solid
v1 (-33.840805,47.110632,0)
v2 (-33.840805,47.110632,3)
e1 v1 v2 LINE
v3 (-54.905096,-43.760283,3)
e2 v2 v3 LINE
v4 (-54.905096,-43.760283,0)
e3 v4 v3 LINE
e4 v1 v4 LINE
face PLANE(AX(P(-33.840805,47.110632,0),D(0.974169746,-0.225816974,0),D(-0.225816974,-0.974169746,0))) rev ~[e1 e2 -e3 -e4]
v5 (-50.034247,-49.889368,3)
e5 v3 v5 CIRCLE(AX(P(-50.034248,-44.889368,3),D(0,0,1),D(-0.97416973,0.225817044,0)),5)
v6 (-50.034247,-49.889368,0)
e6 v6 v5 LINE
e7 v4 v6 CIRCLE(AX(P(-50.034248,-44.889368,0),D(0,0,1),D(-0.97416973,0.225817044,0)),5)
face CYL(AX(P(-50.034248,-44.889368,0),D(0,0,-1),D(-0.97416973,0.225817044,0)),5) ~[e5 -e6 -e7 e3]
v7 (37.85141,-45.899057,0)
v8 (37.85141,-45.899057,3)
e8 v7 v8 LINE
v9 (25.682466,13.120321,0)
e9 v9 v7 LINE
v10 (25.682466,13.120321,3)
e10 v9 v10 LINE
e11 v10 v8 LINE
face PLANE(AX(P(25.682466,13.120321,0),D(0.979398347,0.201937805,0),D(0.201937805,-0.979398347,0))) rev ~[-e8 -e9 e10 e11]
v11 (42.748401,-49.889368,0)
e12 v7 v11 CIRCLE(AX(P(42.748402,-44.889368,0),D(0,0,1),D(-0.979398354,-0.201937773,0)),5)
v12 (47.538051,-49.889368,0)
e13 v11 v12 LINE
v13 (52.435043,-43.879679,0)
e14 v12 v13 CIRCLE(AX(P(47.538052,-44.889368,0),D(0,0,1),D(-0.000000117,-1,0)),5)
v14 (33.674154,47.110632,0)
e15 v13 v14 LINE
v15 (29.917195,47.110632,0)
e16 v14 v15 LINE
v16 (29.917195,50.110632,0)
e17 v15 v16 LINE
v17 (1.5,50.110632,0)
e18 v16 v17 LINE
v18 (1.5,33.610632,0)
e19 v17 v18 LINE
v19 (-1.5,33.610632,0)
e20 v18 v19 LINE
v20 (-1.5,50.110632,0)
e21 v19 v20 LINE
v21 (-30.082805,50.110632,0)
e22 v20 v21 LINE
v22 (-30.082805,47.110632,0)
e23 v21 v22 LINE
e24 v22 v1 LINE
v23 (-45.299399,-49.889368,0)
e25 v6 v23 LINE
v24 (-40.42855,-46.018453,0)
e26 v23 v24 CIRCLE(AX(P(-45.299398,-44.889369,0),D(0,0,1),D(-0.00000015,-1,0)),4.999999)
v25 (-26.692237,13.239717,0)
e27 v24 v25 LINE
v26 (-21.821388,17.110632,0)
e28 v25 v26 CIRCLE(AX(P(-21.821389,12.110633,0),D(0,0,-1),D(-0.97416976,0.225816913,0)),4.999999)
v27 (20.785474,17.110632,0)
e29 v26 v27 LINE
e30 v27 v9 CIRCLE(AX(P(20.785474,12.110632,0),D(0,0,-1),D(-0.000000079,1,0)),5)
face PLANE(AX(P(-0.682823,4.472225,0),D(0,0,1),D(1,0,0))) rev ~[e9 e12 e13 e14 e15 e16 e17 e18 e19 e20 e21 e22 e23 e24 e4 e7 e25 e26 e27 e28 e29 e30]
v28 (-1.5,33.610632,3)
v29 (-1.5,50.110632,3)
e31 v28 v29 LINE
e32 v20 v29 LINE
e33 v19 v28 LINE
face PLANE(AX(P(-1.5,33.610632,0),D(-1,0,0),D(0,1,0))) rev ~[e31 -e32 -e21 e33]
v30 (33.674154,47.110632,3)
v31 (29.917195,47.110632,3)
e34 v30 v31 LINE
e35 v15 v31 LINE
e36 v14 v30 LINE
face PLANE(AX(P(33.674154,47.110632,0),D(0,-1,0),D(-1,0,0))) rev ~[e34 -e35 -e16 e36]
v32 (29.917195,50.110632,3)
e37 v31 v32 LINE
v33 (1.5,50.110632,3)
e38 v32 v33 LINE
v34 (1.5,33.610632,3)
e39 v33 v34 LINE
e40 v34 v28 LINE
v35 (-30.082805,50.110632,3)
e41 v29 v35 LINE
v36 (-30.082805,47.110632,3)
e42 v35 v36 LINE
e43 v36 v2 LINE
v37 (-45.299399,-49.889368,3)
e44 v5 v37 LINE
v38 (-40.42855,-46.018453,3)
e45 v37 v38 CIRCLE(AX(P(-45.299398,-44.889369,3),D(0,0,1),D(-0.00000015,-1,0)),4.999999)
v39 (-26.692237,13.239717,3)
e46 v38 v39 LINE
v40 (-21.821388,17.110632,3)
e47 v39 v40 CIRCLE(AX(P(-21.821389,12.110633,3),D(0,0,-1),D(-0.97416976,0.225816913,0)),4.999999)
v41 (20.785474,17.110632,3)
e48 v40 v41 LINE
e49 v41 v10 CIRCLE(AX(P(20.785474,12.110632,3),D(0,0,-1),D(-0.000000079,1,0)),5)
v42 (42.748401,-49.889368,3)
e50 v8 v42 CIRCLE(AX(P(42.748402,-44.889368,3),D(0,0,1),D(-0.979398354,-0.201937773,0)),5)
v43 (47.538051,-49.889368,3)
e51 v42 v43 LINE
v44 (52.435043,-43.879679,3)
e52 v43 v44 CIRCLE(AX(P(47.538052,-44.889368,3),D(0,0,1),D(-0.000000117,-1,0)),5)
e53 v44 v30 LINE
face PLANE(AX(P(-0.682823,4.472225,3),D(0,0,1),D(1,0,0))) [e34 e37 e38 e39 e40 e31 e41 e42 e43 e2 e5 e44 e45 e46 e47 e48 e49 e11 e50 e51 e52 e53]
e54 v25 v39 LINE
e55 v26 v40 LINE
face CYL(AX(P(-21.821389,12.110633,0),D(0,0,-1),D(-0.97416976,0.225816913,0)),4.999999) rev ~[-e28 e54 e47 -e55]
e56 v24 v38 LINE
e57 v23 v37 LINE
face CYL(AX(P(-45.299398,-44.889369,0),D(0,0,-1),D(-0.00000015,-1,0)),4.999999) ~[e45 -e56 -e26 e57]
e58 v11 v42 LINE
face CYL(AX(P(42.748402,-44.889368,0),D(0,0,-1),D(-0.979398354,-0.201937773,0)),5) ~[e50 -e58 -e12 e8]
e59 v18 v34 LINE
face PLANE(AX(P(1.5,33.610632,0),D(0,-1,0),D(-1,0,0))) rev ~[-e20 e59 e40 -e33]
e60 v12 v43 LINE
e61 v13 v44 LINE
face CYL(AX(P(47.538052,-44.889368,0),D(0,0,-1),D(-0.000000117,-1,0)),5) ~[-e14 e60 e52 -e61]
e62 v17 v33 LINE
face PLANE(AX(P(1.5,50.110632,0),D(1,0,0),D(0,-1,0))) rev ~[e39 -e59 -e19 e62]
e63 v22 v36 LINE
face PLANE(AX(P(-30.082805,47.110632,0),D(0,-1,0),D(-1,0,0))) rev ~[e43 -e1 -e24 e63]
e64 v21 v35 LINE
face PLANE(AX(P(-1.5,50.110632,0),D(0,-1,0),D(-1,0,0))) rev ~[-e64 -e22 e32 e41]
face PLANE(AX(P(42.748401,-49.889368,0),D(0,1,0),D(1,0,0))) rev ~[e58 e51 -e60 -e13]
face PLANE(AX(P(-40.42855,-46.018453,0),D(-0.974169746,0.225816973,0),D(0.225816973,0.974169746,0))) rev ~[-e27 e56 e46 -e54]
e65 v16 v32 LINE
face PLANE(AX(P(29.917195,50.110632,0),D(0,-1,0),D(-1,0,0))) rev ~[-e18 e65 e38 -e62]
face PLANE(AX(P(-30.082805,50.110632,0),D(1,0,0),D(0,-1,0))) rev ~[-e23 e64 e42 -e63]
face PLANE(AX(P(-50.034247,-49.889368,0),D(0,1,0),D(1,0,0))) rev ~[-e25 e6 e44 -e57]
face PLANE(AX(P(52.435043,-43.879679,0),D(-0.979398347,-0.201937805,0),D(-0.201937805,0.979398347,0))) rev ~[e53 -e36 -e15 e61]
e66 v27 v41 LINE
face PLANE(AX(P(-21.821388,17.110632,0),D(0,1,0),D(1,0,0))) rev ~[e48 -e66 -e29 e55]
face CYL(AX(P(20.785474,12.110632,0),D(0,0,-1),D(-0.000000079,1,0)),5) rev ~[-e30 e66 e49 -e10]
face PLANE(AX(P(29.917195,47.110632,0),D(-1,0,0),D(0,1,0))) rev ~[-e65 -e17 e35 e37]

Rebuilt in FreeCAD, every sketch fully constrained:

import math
import FreeCAD as App
import Part
import Sketcher
from FreeCAD import Vector
Q = App.Units.Quantity

doc = App.newDocument("Part")
body = doc.addObject("PartDesign::Body", "Body")

# Sketch on XY plane
sketch1 = body.newObject("Sketcher::SketchObject", "Sketch")
sketch1.AttachmentSupport = (doc.getObject("XY_Plane"), [""])
sketch1.MapMode = "FlatFace"
sketch1.addGeometry([
    Part.LineSegment(Vector(-1.5, 50.1, 0), Vector(-30.1, 50.1, 0)),  # 0
    Part.LineSegment(Vector(-30.1, 50.1, 0), Vector(-30.1, 47.1, 0)),  # 1
    Part.LineSegment(Vector(-30.1, 47.1, 0), Vector(-33.8, 47.1, 0)),  # 2
    Part.LineSegment(Vector(-33.8, 47.1, 0), Vector(-54.9, -43.8, 0)),  # 3
    Part.ArcOfCircle(Part.Circle(Vector(-50, -44.9, 0), Vector(0, 0, 1), 5), math.radians(167), math.radians(270)),  # 4
    Part.LineSegment(Vector(-50, -49.9, 0), Vector(-45.3, -49.9, 0)),  # 5
    Part.ArcOfCircle(Part.Circle(Vector(-45.3, -44.9, 0), Vector(0, 0, 1), 5), math.radians(-90), math.radians(-13)),  # 6
    Part.LineSegment(Vector(-40.4, -46, 0), Vector(-26.7, 13.2, 0)),  # 7
    Part.ArcOfCircle(Part.Circle(Vector(-21.8, 12.1, 0), Vector(0, 0, 1), 5), math.radians(90), math.radians(167)),  # 8
    Part.LineSegment(Vector(-21.8, 17.1, 0), Vector(20.8, 17.1, 0)),  # 9
    Part.ArcOfCircle(Part.Circle(Vector(20.8, 12.1, 0), Vector(0, 0, 1), 5), math.radians(12), math.radians(90)),  # 10
    Part.LineSegment(Vector(25.7, 13.1, 0), Vector(37.9, -45.9, 0)),  # 11
    Part.ArcOfCircle(Part.Circle(Vector(42.7, -44.9, 0), Vector(0, 0, 1), 5), math.radians(-168), math.radians(-90)),  # 12
    Part.LineSegment(Vector(42.7, -49.9, 0), Vector(47.5, -49.9, 0)),  # 13
    Part.ArcOfCircle(Part.Circle(Vector(47.5, -44.9, 0), Vector(0, 0, 1), 5), math.radians(-90), math.radians(12)),  # 14
    Part.LineSegment(Vector(52.4, -43.9, 0), Vector(33.7, 47.1, 0)),  # 15
    Part.LineSegment(Vector(33.7, 47.1, 0), Vector(29.9, 47.1, 0)),  # 16
    Part.LineSegment(Vector(29.9, 47.1, 0), Vector(29.9, 50.1, 0)),  # 17
    Part.LineSegment(Vector(29.9, 50.1, 0), Vector(1.5, 50.1, 0)),  # 18
    Part.LineSegment(Vector(1.5, 50.1, 0), Vector(1.5, 33.6, 0)),  # 19
    Part.LineSegment(Vector(1.5, 33.6, 0), Vector(-1.5, 33.6, 0)),  # 20
    Part.LineSegment(Vector(-1.5, 33.6, 0), Vector(-1.5, 50.1, 0)),  # 21
], False)
sketch1.addConstraint([
    Sketcher.Constraint("Coincident", 0, 2, 1, 1),
    Sketcher.Constraint("Coincident", 1, 2, 2, 1),
    Sketcher.Constraint("Coincident", 2, 2, 3, 1),
    Sketcher.Constraint("Tangent", 3, 2, 4, 1),
    Sketcher.Constraint("Tangent", 4, 2, 5, 1),
    Sketcher.Constraint("Tangent", 5, 2, 6, 1),
    Sketcher.Constraint("Tangent", 6, 2, 7, 1),
    Sketcher.Constraint("Tangent", 7, 2, 8, 2),
    Sketcher.Constraint("Tangent", 8, 1, 9, 1),
    Sketcher.Constraint("Tangent", 9, 2, 10, 2),
    Sketcher.Constraint("Tangent", 10, 1, 11, 1),
    Sketcher.Constraint("Tangent", 11, 2, 12, 1),
    Sketcher.Constraint("Tangent", 12, 2, 13, 1),
    Sketcher.Constraint("Tangent", 13, 2, 14, 1),
    Sketcher.Constraint("Tangent", 14, 2, 15, 1),
    Sketcher.Constraint("Coincident", 15, 2, 16, 1),
    Sketcher.Constraint("Coincident", 16, 2, 17, 1),
    Sketcher.Constraint("Coincident", 17, 2, 18, 1),
    Sketcher.Constraint("Coincident", 18, 2, 19, 1),
    Sketcher.Constraint("Coincident", 19, 2, 20, 1),
    Sketcher.Constraint("Coincident", 20, 2, 21, 1),
    Sketcher.Constraint("Coincident", 21, 2, 0, 1),
    Sketcher.Constraint("Horizontal", 0),
    Sketcher.Constraint("Vertical", 1),
    Sketcher.Constraint("Horizontal", 2),
    Sketcher.Constraint("Horizontal", 5),
    Sketcher.Constraint("Horizontal", 9),
    Sketcher.Constraint("Horizontal", 13),
    Sketcher.Constraint("Horizontal", 16),
    Sketcher.Constraint("Vertical", 17),
    Sketcher.Constraint("Horizontal", 18),
    Sketcher.Constraint("Vertical", 19),
    Sketcher.Constraint("Horizontal", 20),
    Sketcher.Constraint("Vertical", 21),
    Sketcher.Constraint("Equal", 4, 6),
    Sketcher.Constraint("Equal", 6, 8),
    Sketcher.Constraint("Equal", 8, 10),
    Sketcher.Constraint("Equal", 10, 12),
    Sketcher.Constraint("Equal", 12, 14),
    Sketcher.Constraint("Symmetric", 18, 2, 21, 2, -2),
    Sketcher.Constraint("Parallel", 3, 7),
    Sketcher.Constraint("Parallel", 11, 15),
    Sketcher.Constraint("Horizontal", 6, 3, 12, 3),
    Sketcher.Constraint("Horizontal", 2, 2, 15, 2),
    Sketcher.Constraint("Equal", 20, 1),
    Sketcher.Constraint("Radius", 4, Q("5 mm")),
    Sketcher.Constraint("DistanceX", 20, 2, 20, 1, Q("3 mm")),
    Sketcher.Constraint("DistanceY", 19, 2, 19, 1, Q("16.5 mm")),
    Sketcher.Constraint("DistanceY", 6, 3, 8, 3, Q("57.000001 mm")),
    Sketcher.Constraint("DistanceY", 8, 3, 0, 2, Q("37.999999 mm")),
    Sketcher.Constraint("DistanceX", 2, 2, 2, 1, Q("3.758 mm")),
    Sketcher.Constraint("DistanceX", 13, 1, 13, 2, Q("4.78965 mm")),
    Sketcher.Constraint("DistanceX", 16, 2, 16, 1, Q("3.756959 mm")),
    Sketcher.Constraint("DistanceX", 6, 3, -1, 1, Q("45.299398 mm")),
    Sketcher.Constraint("DistanceX", -1, 1, 12, 3, Q("42.748402 mm")),
    Sketcher.Constraint("DistanceX", 4, 3, 14, 3, Q("97.572299 mm")),
    Sketcher.Constraint("Distance", 3, Q("93.280371 mm")),
    Sketcher.Constraint("Distance", 11, Q("60.260851 mm")),
    Sketcher.Constraint("DistanceY", 4, 3, -1, 1, Q("44.889368 mm")),
])
pad1 = body.newObject("PartDesign::Pad", "Pad")
pad1.Profile = sketch1
pad1.Length = 3

doc.recompute()
